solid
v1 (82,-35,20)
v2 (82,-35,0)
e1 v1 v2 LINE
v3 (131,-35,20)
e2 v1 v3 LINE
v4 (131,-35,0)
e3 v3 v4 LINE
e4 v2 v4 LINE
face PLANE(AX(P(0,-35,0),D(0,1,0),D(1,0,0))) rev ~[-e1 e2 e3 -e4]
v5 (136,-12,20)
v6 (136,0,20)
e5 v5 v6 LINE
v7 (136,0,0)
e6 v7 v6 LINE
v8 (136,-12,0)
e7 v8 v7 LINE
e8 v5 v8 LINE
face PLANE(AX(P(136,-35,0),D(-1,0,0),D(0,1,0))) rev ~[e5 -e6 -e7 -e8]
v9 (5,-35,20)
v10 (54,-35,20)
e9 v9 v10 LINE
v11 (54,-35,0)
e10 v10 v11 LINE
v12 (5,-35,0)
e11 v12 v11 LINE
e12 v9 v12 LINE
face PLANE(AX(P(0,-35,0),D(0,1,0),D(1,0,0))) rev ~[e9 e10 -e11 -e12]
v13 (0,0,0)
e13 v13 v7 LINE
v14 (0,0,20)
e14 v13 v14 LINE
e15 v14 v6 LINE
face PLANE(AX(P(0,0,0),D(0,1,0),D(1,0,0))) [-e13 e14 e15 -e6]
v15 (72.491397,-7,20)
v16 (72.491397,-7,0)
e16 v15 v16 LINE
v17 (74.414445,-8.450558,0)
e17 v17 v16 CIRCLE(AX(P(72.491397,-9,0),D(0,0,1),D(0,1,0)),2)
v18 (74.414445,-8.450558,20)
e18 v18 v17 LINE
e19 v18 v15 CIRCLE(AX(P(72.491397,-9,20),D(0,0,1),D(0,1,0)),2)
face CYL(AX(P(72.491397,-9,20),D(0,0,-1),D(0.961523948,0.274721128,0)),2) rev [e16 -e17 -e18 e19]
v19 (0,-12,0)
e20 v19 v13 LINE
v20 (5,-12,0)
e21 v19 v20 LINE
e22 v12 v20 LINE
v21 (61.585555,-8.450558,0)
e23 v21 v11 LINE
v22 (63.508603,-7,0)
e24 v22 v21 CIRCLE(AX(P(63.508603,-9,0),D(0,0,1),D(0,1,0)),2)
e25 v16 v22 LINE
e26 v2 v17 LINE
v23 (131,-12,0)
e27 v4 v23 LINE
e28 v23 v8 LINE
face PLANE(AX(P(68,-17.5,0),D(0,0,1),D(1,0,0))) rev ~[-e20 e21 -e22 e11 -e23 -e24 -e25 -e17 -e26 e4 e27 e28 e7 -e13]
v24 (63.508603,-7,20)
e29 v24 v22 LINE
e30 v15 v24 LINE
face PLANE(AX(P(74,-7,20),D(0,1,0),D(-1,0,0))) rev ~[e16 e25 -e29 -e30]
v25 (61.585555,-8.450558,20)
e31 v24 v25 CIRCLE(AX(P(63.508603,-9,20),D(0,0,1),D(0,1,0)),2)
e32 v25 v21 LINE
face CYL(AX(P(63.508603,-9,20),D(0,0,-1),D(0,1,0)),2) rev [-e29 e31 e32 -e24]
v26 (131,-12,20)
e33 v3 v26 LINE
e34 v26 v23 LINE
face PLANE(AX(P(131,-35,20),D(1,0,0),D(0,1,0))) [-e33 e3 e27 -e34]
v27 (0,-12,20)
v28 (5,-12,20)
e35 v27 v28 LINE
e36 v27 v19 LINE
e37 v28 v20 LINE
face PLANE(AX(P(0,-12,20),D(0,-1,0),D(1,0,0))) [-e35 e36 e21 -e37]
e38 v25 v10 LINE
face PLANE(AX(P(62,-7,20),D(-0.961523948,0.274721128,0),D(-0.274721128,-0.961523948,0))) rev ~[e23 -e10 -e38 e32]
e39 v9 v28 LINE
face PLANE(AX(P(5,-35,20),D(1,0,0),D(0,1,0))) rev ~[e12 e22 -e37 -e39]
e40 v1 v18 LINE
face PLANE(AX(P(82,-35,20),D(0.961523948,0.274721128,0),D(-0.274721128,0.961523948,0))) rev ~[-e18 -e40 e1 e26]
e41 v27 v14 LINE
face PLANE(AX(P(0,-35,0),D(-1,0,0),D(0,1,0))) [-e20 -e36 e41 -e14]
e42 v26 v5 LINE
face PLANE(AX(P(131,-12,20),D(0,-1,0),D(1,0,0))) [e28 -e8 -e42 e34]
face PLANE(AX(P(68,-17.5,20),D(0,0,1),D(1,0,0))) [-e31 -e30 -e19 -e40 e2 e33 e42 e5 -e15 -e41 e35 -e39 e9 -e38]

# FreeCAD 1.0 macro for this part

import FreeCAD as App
import Part
import Sketcher

V = App.Vector
Q = App.Units.Quantity


def edges_at(feature, points):
    """Names of the edges that pass closest to the given points."""
    edges = feature.Shape.Edges
    near = lambda p: min(range(len(edges)), key=lambda i: edges[i].distToShape(Part.Vertex(*p))[0])
    return sorted({f"Edge{near(p) + 1}" for p in points})


def add_polygon(sketch, points):
    """Adds a closed chain of lines whose ends are joined by coincident constraints."""
    first, n = sketch.GeometryCount, len(points)
    for a, b in zip(points, points[1:] + points[:1]):
        sketch.addGeometry(Part.LineSegment(App.Vector(*a, 0), App.Vector(*b, 0)), False)
    for i in range(n):
        sketch.addConstraint(Sketcher.Constraint("Coincident", first + i, 2, first + (i + 1) % n, 1))

doc = App.newDocument("Part")
body = doc.addObject("PartDesign::Body", "Body")

# Sketch on XY plane
sketch1 = body.newObject("Sketcher::SketchObject", "Sketch")
sketch1.AttachmentSupport = (doc.getObject("XY_Plane"), [""])
sketch1.MapMode = "FlatFace"
add_polygon(sketch1, [(0, 0), (0, -35), (136, -35), (136, 0)])  # lines 0-3
sketch1.addConstraint(Sketcher.Constraint("Vertical", 0))
sketch1.addConstraint(Sketcher.Constraint("Horizontal", 1))
sketch1.addConstraint(Sketcher.Constraint("Vertical", 2))
sketch1.addConstraint(Sketcher.Constraint("Horizontal", 3))
sketch1.addConstraint(Sketcher.Constraint("Coincident", 3, 2, -1, 1))
sketch1.addConstraint(Sketcher.Constraint("DistanceX", 1, 1, 1, 2, Q("136 mm")))
sketch1.addConstraint(Sketcher.Constraint("DistanceY", 0, 2, 0, 1, Q("35 mm")))
pad1 = body.newObject("PartDesign::Pad", "Pad")
pad1.Profile = sketch1
pad1.Length = 20

# Sketch on XY plane
sketch2 = body.newObject("Sketcher::SketchObject", "Sketch001")
sketch2.AttachmentSupport = (doc.getObject("XY_Plane"), [""])
sketch2.MapMode = "FlatFace"
sketch2.AttachmentOffset = App.Placement(V(0, 0, 20), App.Rotation())
add_polygon(sketch2, [(62, -7), (54, -35), (82, -35), (74, -7)])  # lines 0-3
add_polygon(sketch2, [(131, -12), (131, -35), (136, -35), (136, -12)])  # lines 4-7
add_polygon(sketch2, [(0, -12), (0, -35), (5, -35), (5, -12)])  # lines 8-11
sketch2.addConstraint(Sketcher.Constraint("Horizontal", 1))
sketch2.addConstraint(Sketcher.Constraint("Horizontal", 3))
sketch2.addConstraint(Sketcher.Constraint("Vertical", 4))
sketch2.addConstraint(Sketcher.Constraint("Horizontal", 5))
sketch2.addConstraint(Sketcher.Constraint("Vertical", 6))
sketch2.addConstraint(Sketcher.Constraint("Horizontal", 7))
sketch2.addConstraint(Sketcher.Constraint("Vertical", 8))
sketch2.addConstraint(Sketcher.Constraint("Horizontal", 9))
sketch2.addConstraint(Sketcher.Constraint("Vertical", 10))
sketch2.addConstraint(Sketcher.Constraint("Horizontal", 11))
sketch2.addConstraint(Sketcher.Constraint("PointOnObject", 8, 2, -2))
sketch2.addConstraint(Sketcher.Constraint("Horizontal", 1, 2, 4, 2))
sketch2.addConstraint(Sketcher.Constraint("Horizontal", 5, 2, 8, 2))
sketch2.addConstraint(Sketcher.Constraint("Horizontal", 7, 2, 10, 2))
sketch2.addConstraint(Sketcher.Constraint("Equal", 7, 9))
sketch2.addConstraint(Sketcher.Constraint("Equal", 0, 2))
sketch2.addConstraint(Sketcher.Constraint("DistanceX", 1, 1, 1, 2, Q("28 mm")))
sketch2.addConstraint(Sketcher.Constraint("DistanceX", 3, 2, 3, 1, Q("12 mm")))
sketch2.addConstraint(Sketcher.Constraint("DistanceX", 5, 1, 5, 2, Q("5 mm")))
sketch2.addConstraint(Sketcher.Constraint("DistanceY", 4, 2, 4, 1, Q("23 mm")))
sketch2.addConstraint(Sketcher.Constraint("DistanceX", -1, 1, 0, 2, Q("54 mm")))
sketch2.addConstraint(Sketcher.Constraint("DistanceY", 0, 2, -1, 1, Q("35 mm")))
sketch2.addConstraint(Sketcher.Constraint("DistanceY", 2, 2, -1, 1, Q("7 mm")))
sketch2.addConstraint(Sketcher.Constraint("DistanceX", -1, 1, 4, 2, Q("131 mm")))
pocket1 = body.newObject("PartDesign::Pocket", "Pocket")
pocket1.Profile = sketch2
pocket1.Length = 25
doc.recompute()

fillet = body.newObject("PartDesign::Fillet", "Fillet")
fillet.Base = (pocket1, edges_at(pocket1, [(62, -7, 10), (74, -7, 10)]))
fillet.Radius = 2

doc.recompute()
